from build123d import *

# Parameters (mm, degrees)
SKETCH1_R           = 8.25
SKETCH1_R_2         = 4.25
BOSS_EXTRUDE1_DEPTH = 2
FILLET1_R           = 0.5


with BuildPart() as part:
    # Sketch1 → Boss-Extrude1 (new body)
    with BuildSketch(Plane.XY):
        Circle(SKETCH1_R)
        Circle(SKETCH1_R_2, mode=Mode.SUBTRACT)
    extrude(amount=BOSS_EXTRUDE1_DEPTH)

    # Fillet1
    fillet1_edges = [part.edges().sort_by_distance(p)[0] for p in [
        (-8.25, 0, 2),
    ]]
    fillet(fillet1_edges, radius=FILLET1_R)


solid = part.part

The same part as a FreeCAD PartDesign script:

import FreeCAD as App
import Part
import Sketcher

V = App.Vector


def edges_at(feature, points):
    """Names of the edges that pass closest to the given points."""
    edges = feature.Shape.Edges
    near = lambda p: min(range(len(edges)), key=lambda i: edges[i].distToShape(Part.Vertex(*p))[0])
    return sorted({f"Edge{near(p) + 1}" for p in points})

doc = App.newDocument("Part")
body = doc.addObject("PartDesign::Body", "Body")

# Sketch on XY plane
sketch1 = body.newObject("Sketcher::SketchObject", "Sketch")
sketch1.AttachmentSupport = (doc.getObject("XY_Plane"), [""])
sketch1.MapMode = "FlatFace"
sketch1.addGeometry([
    Part.Circle(V(0, 0, 0), V(0, 0, 1), 8.2),
    Part.Circle(V(0, 0, 0), V(0, 0, 1), 4.2),
], False)
sketch1.addConstraint([
    Sketcher.Constraint("Coincident", 0, 3, -1, 1),
    Sketcher.Constraint("Coincident", 1, 3, -1, 1),
    Sketcher.Constraint("Diameter", 0, 16.5),
    Sketcher.Constraint("Diameter", 1, 8.5),
])
pad1 = body.newObject("PartDesign::Pad", "Pad")
pad1.Profile = sketch1
pad1.Length = 2
doc.recompute()

fillet = body.newObject("PartDesign::Fillet", "Fillet")
fillet.Base = (pad1, edges_at(pad1, [(-8.25, 0, 2)]))
fillet.Radius = 0.5

doc.recompute()
